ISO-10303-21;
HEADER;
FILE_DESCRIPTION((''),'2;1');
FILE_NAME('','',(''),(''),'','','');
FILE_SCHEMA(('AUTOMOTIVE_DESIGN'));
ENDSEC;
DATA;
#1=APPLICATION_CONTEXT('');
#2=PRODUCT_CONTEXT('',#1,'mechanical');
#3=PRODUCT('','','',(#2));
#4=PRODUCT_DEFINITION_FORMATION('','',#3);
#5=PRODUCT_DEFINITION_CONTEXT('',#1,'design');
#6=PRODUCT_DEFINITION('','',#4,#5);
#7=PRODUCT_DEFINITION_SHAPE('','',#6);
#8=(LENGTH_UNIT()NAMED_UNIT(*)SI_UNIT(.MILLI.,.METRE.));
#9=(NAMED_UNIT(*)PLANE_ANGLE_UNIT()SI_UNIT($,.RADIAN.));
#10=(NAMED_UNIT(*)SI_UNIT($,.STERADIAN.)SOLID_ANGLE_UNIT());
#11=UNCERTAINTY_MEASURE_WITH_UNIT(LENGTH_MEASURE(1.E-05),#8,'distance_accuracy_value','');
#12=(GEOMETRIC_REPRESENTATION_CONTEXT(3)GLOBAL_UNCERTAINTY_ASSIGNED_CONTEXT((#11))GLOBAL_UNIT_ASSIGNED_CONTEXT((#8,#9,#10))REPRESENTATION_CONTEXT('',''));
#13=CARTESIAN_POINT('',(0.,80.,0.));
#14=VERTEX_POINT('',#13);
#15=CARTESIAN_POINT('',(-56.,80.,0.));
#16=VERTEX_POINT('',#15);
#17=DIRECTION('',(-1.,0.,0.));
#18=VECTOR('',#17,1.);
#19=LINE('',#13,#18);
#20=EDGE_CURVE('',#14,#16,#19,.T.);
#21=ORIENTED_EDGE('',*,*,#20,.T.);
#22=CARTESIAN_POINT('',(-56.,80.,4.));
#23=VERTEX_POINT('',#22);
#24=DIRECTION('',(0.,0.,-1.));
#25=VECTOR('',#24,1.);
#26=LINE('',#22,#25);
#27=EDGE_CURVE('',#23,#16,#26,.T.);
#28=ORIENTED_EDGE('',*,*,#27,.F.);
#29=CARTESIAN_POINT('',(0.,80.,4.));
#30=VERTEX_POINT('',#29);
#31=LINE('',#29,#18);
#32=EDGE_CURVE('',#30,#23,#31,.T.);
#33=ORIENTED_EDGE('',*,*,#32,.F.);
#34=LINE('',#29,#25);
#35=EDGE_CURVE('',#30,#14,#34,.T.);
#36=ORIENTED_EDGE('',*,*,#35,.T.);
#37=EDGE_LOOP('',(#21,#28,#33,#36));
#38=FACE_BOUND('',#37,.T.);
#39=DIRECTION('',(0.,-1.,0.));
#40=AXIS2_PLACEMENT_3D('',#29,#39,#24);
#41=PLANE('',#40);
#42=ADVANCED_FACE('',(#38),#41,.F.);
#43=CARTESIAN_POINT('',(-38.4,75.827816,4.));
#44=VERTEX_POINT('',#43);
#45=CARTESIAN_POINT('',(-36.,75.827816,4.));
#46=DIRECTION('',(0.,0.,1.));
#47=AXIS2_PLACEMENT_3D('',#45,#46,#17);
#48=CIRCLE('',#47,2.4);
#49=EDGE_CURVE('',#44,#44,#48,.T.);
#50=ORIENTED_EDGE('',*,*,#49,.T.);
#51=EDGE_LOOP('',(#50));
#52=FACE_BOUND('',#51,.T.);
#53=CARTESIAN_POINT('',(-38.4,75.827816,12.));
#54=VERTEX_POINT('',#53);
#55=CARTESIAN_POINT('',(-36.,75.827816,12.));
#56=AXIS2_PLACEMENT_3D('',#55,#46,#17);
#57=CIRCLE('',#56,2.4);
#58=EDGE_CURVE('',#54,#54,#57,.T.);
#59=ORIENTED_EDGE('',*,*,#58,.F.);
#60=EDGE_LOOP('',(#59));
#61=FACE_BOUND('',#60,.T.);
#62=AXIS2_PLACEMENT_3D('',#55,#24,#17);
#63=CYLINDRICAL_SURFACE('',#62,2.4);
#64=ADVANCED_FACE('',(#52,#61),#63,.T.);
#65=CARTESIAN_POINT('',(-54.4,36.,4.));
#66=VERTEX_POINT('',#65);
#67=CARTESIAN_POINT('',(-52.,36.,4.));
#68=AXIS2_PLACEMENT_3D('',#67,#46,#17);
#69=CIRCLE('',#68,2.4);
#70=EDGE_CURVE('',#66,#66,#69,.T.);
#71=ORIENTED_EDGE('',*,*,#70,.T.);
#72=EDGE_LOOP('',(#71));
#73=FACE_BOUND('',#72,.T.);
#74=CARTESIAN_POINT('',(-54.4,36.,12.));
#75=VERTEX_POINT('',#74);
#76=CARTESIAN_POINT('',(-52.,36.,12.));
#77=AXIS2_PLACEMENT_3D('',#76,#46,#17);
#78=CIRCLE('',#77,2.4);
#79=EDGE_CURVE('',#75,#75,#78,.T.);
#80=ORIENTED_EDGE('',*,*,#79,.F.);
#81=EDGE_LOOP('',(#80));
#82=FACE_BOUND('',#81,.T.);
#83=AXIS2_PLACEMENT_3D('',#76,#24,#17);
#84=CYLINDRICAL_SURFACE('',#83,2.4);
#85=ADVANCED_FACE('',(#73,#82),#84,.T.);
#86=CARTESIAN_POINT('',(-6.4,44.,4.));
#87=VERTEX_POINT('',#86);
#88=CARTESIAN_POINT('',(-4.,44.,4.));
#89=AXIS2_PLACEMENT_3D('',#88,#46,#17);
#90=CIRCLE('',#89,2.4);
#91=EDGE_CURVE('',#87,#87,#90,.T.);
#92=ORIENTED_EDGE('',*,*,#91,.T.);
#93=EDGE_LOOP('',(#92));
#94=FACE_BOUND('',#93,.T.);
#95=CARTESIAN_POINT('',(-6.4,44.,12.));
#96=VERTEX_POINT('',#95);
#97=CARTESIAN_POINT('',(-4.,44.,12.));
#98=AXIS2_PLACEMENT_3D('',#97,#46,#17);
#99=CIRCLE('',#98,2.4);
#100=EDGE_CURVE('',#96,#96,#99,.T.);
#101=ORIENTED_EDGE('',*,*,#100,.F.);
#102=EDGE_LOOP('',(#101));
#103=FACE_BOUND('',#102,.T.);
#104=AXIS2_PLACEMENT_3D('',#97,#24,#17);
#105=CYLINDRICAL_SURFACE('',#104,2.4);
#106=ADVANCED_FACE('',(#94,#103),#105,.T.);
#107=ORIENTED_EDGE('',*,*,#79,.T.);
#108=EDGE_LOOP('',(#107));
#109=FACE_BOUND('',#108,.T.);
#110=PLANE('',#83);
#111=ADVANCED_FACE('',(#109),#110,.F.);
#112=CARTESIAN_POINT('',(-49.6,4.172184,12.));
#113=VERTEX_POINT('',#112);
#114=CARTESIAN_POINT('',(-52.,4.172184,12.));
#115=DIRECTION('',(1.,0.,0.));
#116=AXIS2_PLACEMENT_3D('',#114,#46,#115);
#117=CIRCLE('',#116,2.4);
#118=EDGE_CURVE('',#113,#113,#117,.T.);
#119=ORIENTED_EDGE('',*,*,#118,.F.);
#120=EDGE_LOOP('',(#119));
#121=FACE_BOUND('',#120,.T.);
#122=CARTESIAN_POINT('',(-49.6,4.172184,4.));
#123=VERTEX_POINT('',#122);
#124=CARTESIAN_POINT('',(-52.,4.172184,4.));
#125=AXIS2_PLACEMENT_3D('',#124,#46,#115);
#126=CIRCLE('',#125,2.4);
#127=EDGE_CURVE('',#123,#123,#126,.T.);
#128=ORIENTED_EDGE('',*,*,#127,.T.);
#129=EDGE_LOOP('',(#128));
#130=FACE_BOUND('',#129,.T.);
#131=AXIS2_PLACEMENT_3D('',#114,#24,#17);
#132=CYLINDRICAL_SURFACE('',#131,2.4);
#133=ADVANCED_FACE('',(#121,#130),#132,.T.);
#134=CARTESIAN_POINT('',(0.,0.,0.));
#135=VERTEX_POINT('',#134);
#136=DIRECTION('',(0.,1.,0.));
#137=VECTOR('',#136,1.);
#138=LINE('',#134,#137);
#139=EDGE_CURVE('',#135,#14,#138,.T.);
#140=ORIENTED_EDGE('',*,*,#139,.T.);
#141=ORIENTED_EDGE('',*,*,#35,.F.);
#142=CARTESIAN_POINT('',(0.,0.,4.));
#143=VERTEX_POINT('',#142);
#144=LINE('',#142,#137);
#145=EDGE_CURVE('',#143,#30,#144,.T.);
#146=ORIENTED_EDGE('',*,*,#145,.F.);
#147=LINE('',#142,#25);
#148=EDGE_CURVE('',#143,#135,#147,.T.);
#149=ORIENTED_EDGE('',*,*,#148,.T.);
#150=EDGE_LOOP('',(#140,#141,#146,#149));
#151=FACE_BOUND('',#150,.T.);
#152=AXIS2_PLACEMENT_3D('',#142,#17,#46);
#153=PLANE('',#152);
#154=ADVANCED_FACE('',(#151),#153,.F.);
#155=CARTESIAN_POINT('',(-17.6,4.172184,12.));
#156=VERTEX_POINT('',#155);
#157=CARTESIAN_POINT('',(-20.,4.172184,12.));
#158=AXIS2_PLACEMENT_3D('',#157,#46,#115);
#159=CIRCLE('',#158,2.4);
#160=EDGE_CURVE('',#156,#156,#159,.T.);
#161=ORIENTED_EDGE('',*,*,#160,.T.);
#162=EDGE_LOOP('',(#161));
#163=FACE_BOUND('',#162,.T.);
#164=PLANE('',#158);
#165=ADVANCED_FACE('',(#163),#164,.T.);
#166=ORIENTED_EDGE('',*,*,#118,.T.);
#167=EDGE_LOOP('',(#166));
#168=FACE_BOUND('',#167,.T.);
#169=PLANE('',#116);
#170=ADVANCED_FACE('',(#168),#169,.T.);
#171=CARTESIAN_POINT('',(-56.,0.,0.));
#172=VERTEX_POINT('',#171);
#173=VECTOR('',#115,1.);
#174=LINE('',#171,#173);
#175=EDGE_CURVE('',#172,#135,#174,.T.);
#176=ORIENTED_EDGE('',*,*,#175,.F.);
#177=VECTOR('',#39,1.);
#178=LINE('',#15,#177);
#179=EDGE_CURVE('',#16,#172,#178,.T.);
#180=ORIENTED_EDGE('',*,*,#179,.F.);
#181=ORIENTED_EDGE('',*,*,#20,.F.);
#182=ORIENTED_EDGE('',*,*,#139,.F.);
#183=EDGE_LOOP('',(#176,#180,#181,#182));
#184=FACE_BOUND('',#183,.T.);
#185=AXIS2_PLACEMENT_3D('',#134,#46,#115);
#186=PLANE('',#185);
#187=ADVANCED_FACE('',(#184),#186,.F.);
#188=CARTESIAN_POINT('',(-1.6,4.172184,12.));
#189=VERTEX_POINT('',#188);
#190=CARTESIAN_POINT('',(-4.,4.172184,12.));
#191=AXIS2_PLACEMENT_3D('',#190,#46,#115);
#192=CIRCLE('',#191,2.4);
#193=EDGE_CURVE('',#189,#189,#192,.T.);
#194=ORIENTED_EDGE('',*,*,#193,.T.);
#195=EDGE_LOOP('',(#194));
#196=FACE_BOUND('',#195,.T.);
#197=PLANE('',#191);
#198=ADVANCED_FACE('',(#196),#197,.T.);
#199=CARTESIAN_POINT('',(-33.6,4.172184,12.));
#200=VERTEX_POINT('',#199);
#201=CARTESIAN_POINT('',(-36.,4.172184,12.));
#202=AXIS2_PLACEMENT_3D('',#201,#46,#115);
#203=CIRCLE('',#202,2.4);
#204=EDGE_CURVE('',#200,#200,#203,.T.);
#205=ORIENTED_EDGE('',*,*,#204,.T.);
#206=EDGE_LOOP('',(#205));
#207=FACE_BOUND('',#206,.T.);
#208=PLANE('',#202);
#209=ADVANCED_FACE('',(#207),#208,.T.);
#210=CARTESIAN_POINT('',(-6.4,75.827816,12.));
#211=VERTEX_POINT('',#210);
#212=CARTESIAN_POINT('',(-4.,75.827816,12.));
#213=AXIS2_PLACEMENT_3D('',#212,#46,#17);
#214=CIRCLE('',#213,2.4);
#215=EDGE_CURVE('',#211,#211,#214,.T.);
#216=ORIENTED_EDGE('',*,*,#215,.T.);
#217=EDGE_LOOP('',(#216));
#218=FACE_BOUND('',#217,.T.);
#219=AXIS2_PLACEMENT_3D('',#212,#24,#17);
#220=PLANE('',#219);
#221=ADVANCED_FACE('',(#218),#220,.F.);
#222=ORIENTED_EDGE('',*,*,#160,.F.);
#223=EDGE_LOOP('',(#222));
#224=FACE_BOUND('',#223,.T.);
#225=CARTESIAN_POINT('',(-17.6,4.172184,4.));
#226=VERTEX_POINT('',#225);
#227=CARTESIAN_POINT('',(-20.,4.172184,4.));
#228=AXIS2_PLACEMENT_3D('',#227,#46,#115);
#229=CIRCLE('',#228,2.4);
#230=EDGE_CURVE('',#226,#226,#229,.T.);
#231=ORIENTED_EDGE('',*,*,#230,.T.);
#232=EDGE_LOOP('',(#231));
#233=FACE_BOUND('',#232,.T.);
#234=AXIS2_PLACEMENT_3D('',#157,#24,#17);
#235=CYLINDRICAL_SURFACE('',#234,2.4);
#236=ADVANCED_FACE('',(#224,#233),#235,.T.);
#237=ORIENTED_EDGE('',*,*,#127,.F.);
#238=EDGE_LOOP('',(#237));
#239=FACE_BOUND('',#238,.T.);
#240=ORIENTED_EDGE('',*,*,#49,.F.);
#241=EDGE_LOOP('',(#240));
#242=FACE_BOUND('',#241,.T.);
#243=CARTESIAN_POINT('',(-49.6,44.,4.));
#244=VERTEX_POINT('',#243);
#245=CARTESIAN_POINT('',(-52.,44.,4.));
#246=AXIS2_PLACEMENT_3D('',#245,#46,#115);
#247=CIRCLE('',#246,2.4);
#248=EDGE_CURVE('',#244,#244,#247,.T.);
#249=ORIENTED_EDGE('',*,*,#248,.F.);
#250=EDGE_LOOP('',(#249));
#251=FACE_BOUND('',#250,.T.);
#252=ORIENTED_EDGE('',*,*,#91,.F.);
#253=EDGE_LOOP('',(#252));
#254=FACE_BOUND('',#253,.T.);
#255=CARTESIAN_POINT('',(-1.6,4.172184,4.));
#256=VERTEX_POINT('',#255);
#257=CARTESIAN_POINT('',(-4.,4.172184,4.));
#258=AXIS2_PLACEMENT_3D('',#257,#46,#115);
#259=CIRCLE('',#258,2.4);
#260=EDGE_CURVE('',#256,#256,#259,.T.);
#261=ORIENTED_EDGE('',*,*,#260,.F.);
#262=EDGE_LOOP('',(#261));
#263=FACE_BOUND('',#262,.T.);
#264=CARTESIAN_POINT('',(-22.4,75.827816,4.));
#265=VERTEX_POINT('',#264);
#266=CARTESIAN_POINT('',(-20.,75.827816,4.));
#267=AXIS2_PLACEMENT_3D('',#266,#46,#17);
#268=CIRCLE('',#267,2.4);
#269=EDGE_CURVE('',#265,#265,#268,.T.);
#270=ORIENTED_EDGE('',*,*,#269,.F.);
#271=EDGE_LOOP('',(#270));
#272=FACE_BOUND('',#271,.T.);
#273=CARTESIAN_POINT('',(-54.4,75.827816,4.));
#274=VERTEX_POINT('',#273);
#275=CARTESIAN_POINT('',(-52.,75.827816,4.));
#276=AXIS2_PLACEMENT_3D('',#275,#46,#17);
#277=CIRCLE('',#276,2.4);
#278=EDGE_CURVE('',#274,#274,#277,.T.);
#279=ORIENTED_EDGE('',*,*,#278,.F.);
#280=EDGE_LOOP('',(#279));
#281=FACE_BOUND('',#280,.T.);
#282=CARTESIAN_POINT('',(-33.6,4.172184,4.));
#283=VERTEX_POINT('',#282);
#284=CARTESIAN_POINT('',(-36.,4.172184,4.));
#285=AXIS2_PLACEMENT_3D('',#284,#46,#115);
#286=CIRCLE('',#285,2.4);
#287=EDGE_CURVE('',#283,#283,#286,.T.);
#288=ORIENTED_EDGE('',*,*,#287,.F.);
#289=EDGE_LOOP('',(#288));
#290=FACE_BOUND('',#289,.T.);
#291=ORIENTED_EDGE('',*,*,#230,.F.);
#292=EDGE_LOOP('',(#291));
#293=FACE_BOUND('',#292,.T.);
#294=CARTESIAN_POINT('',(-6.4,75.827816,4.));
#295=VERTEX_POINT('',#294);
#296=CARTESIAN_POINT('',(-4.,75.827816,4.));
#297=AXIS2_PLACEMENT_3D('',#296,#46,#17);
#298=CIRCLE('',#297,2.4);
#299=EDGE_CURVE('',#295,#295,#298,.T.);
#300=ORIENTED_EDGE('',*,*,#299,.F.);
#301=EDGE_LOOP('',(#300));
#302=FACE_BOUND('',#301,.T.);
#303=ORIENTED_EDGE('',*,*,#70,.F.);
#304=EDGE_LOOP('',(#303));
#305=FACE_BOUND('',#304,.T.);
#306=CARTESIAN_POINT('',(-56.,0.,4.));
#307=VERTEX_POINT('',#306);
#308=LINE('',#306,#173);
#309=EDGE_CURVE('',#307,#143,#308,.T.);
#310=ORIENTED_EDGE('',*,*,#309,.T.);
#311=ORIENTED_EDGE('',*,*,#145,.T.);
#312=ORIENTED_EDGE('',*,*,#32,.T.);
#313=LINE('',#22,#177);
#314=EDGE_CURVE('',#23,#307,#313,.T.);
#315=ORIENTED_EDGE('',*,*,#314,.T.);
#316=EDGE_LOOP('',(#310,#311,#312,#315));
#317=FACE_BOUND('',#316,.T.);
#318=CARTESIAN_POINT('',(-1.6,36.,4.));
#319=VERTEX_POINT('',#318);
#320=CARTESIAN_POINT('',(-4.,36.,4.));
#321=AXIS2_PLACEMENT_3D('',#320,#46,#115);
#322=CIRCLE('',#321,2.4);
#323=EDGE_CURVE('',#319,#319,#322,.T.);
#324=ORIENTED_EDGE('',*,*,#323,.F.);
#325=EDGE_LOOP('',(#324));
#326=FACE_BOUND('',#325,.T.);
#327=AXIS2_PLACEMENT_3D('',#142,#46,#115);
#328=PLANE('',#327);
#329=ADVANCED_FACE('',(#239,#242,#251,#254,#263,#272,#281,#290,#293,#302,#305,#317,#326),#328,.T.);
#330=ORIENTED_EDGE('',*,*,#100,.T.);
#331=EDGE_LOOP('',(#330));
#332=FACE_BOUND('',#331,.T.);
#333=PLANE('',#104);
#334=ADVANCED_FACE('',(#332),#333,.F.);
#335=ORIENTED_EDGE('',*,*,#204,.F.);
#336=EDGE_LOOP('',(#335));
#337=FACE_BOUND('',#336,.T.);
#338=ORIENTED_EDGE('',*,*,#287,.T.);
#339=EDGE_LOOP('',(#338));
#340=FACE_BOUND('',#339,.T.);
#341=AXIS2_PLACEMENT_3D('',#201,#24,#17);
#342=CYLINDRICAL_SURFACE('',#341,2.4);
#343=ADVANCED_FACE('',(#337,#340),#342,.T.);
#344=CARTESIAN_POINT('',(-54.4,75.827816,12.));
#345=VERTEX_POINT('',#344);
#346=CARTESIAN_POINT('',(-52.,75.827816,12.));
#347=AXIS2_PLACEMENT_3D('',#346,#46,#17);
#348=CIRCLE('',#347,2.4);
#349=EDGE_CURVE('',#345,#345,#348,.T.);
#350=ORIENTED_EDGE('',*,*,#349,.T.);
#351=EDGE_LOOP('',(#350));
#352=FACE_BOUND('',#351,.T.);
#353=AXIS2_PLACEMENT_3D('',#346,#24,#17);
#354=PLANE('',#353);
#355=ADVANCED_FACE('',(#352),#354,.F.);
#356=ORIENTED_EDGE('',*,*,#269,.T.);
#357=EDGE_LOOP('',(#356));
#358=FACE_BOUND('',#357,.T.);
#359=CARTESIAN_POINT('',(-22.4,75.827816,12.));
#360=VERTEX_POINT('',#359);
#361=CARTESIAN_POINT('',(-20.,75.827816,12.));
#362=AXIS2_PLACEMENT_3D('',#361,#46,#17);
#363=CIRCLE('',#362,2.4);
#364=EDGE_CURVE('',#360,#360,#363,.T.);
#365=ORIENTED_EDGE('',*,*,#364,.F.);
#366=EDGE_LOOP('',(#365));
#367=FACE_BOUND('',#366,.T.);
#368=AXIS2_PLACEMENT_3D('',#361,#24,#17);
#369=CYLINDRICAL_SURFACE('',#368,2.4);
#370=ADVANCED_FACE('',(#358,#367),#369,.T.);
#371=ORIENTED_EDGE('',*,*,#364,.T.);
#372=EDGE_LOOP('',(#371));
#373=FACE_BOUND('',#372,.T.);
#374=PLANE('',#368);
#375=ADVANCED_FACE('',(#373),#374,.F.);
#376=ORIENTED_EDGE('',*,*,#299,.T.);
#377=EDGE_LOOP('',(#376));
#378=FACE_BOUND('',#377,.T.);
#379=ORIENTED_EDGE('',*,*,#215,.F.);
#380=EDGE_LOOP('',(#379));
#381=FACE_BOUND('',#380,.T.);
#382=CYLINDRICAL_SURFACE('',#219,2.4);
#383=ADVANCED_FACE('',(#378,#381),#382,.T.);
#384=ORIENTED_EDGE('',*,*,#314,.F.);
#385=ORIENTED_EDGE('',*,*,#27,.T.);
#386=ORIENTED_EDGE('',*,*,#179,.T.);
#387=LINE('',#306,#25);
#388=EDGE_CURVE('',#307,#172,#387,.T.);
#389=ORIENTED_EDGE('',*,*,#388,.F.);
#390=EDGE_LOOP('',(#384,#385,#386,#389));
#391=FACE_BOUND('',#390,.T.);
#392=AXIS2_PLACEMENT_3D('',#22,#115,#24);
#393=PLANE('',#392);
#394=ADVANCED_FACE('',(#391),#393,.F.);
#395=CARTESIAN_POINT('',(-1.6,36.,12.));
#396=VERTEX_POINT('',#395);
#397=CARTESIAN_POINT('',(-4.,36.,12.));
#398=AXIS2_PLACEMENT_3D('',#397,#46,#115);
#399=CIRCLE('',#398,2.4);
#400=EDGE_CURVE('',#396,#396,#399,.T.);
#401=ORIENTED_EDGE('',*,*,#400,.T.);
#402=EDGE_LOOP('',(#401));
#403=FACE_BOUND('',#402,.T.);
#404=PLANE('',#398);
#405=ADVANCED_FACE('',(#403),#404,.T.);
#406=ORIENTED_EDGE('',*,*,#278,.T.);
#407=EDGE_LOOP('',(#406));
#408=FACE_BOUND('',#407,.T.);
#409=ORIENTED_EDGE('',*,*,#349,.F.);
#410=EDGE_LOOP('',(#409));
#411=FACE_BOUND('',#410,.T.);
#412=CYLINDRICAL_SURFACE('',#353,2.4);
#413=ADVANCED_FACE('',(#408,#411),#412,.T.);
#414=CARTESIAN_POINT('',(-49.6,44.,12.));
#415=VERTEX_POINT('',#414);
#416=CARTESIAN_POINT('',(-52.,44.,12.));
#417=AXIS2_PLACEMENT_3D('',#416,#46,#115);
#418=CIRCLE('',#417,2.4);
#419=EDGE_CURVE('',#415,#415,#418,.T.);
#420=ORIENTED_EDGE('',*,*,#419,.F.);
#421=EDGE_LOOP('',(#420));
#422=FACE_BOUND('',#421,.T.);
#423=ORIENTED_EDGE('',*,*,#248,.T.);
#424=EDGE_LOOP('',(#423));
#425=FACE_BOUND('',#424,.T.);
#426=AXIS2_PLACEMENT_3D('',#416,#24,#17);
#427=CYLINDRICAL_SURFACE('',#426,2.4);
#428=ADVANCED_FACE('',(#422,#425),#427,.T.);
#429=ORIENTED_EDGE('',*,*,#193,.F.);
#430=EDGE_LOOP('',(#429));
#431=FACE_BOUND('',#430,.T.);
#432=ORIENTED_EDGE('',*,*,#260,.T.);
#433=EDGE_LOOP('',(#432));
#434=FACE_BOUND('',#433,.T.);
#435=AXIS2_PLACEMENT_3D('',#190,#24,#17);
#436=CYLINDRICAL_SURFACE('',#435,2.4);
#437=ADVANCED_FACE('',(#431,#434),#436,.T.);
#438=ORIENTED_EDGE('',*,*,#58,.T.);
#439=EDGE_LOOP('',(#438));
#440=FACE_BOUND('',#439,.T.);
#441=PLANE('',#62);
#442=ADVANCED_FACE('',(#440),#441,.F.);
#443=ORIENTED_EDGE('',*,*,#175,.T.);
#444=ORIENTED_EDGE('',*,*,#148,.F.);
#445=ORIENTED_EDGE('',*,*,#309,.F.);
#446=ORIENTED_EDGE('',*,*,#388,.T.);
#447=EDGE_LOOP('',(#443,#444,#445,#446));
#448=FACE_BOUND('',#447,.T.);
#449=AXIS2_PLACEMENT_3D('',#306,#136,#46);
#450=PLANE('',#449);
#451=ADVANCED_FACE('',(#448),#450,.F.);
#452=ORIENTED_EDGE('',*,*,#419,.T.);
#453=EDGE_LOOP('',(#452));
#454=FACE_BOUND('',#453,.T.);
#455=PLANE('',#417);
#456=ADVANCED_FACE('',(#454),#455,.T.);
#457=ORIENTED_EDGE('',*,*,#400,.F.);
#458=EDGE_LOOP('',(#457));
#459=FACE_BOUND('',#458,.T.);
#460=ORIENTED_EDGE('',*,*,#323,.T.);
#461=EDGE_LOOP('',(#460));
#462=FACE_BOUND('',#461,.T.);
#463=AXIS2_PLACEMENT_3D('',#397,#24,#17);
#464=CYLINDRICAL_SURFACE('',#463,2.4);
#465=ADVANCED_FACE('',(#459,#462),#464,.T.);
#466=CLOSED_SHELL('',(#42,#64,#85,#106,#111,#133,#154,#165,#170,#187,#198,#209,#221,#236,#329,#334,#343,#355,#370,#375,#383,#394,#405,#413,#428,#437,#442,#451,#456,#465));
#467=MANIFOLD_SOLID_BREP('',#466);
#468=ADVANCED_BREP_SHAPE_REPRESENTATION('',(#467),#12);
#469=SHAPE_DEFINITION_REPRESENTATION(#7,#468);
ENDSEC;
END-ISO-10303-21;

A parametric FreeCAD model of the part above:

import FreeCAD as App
import Part
import Sketcher


def add_polygon(sketch, points):
    """Adds a closed chain of lines whose ends are joined by coincident constraints."""
    first, n = sketch.GeometryCount, len(points)
    for a, b in zip(points, points[1:] + points[:1]):
        sketch.addGeometry(Part.LineSegment(App.Vector(*a, 0), App.Vector(*b, 0)), False)
    for i in range(n):
        sketch.addConstraint(Sketcher.Constraint("Coincident", first + i, 2, first + (i + 1) % n, 1))

doc = App.newDocument("Part")
params = doc.addObject("Spreadsheet::Sheet", "Params")
for row, (alias, value) in enumerate([
    ("sketch1_width", "56 mm"),
    ("sketch1_height", "80 mm"),
    ("pad1_length", "4 mm"),
    ("sketch2_diameter", "4.8 mm"),
    ("pad2_length", "8 mm"),
], start=1):
    params.set(f"A{row}", alias)
    params.set(f"B{row}", "=" + value)
    params.setAlias(f"B{row}", alias)

body = doc.addObject("PartDesign::Body", "Body")

# Sketch on XY plane
sketch1 = doc.addObject("Sketcher::SketchObject", "Sketch")
body.addObject(sketch1)
sketch1.AttachmentSupport = (doc.XY_Plane, [""])
sketch1.MapMode = "FlatFace"
add_polygon(sketch1, [(-56, 0), (0, 0), (0, 80), (-56, 80)])  # lines 0-3
sketch1.addConstraint([
    Sketcher.Constraint("Horizontal", 0),
    Sketcher.Constraint("Vertical", 1),
    Sketcher.Constraint("Horizontal", 2),
    Sketcher.Constraint("Vertical", 3),
    Sketcher.Constraint("Coincident", 0, 2, -1, 1),
    Sketcher.Constraint("DistanceX", 0, 1, 0, 2, 56.0),
    Sketcher.Constraint("DistanceY", 1, 1, 1, 2, 80.0),
])
sketch1.setExpression("Constraints[9]", "Params.sketch1_width")
sketch1.setExpression("Constraints[10]", "Params.sketch1_height")
pad1 = doc.addObject("PartDesign::Pad", "Pad")
body.addObject(pad1)
pad1.Profile = sketch1
pad1.setExpression("Length", "Params.pad1_length")

# Sketch on XY plane
sketch2 = doc.addObject("Sketcher::SketchObject", "Sketch001")
body.addObject(sketch2)
sketch2.AttachmentSupport = (doc.XY_Plane, [""])
sketch2.MapMode = "FlatFace"
sketch2.AttachmentOffset = App.Placement(App.Vector(0, 0, 4), App.Rotation())
sketch2.addGeometry([
    Part.Circle(App.Vector(-4, 4.2, 0), App.Vector(0, 0, 1), 2.4),  # 0
    Part.Circle(App.Vector(-20, 4.2, 0), App.Vector(0, 0, 1), 2.4),  # 1
    Part.Circle(App.Vector(-36, 4.2, 0), App.Vector(0, 0, 1), 2.4),  # 2
    Part.Circle(App.Vector(-52, 4.2, 0), App.Vector(0, 0, 1), 2.4),  # 3
    Part.Circle(App.Vector(-52, 75.8, 0), App.Vector(0, 0, 1), 2.4),  # 4
    Part.Circle(App.Vector(-36, 75.8, 0), App.Vector(0, 0, 1), 2.4),  # 5
    Part.Circle(App.Vector(-20, 75.8, 0), App.Vector(0, 0, 1), 2.4),  # 6
    Part.Circle(App.Vector(-4, 75.8, 0), App.Vector(0, 0, 1), 2.4),  # 7
    Part.Circle(App.Vector(-4, 36, 0), App.Vector(0, 0, 1), 2.4),  # 8
    Part.Circle(App.Vector(-4, 44, 0), App.Vector(0, 0, 1), 2.4),  # 9
    Part.Circle(App.Vector(-52, 44, 0), App.Vector(0, 0, 1), 2.4),  # 10
    Part.Circle(App.Vector(-52, 36, 0), App.Vector(0, 0, 1), 2.4),  # 11
], False)
sketch2.addConstraint([
    Sketcher.Constraint("Equal", 0, 1),
    Sketcher.Constraint("Equal", 1, 2),
    Sketcher.Constraint("Equal", 2, 3),
    Sketcher.Constraint("Equal", 3, 4),
    Sketcher.Constraint("Equal", 4, 5),
    Sketcher.Constraint("Equal", 5, 6),
    Sketcher.Constraint("Equal", 6, 7),
    Sketcher.Constraint("Equal", 7, 8),
    Sketcher.Constraint("Equal", 8, 9),
    Sketcher.Constraint("Equal", 9, 10),
    Sketcher.Constraint("Equal", 10, 11),
    Sketcher.Constraint("Horizontal", 0, 3, 1, 3),
    Sketcher.Constraint("Horizontal", 1, 3, 2, 3),
    Sketcher.Constraint("Horizontal", 2, 3, 3, 3),
    Sketcher.Constraint("Horizontal", 4, 3, 5, 3),
    Sketcher.Constraint("Horizontal", 5, 3, 6, 3),
    Sketcher.Constraint("Horizontal", 6, 3, 7, 3),
    Sketcher.Constraint("Horizontal", 9, 3, 10, 3),
    Sketcher.Constraint("Horizontal", 8, 3, 11, 3),
    Sketcher.Constraint("Vertical", 3, 3, 4, 3),
    Sketcher.Constraint("Vertical", 2, 3, 5, 3),
    Sketcher.Constraint("Vertical", 1, 3, 6, 3),
    Sketcher.Constraint("Vertical", 0, 3, 7, 3),
    Sketcher.Constraint("Vertical", 7, 3, 8, 3),
    Sketcher.Constraint("Vertical", 8, 3, 9, 3),
    Sketcher.Constraint("Vertical", 4, 3, 10, 3),
    Sketcher.Constraint("Vertical", 10, 3, 11, 3),
    Sketcher.Constraint("Diameter", 0, 4.8),
    Sketcher.Constraint("DistanceX", 0, 3, -1, 1, 4.0),
    Sketcher.Constraint("DistanceX", 1, 3, -1, 1, 20.0),
    Sketcher.Constraint("DistanceX", 2, 3, -1, 1, 36.0),
    Sketcher.Constraint("DistanceX", 3, 3, -1, 1, 52.0),
    Sketcher.Constraint("DistanceY", -1, 1, 8, 3, 36.0),
    Sketcher.Constraint("DistanceY", -1, 1, 9, 3, 44.0),
    Sketcher.Constraint("DistanceY", 3, 3, 4, 3, 71.655631),
    Sketcher.Constraint("DistanceY", -1, 1, 0, 3, 4.172184),
])
sketch2.setExpression("Constraints[27]", "Params.sketch2_diameter")
pad2 = doc.addObject("PartDesign::Pad", "Pad001")
body.addObject(pad2)
pad2.Profile = sketch2
pad2.setExpression("Length", "Params.pad2_length")

doc.recompute()
